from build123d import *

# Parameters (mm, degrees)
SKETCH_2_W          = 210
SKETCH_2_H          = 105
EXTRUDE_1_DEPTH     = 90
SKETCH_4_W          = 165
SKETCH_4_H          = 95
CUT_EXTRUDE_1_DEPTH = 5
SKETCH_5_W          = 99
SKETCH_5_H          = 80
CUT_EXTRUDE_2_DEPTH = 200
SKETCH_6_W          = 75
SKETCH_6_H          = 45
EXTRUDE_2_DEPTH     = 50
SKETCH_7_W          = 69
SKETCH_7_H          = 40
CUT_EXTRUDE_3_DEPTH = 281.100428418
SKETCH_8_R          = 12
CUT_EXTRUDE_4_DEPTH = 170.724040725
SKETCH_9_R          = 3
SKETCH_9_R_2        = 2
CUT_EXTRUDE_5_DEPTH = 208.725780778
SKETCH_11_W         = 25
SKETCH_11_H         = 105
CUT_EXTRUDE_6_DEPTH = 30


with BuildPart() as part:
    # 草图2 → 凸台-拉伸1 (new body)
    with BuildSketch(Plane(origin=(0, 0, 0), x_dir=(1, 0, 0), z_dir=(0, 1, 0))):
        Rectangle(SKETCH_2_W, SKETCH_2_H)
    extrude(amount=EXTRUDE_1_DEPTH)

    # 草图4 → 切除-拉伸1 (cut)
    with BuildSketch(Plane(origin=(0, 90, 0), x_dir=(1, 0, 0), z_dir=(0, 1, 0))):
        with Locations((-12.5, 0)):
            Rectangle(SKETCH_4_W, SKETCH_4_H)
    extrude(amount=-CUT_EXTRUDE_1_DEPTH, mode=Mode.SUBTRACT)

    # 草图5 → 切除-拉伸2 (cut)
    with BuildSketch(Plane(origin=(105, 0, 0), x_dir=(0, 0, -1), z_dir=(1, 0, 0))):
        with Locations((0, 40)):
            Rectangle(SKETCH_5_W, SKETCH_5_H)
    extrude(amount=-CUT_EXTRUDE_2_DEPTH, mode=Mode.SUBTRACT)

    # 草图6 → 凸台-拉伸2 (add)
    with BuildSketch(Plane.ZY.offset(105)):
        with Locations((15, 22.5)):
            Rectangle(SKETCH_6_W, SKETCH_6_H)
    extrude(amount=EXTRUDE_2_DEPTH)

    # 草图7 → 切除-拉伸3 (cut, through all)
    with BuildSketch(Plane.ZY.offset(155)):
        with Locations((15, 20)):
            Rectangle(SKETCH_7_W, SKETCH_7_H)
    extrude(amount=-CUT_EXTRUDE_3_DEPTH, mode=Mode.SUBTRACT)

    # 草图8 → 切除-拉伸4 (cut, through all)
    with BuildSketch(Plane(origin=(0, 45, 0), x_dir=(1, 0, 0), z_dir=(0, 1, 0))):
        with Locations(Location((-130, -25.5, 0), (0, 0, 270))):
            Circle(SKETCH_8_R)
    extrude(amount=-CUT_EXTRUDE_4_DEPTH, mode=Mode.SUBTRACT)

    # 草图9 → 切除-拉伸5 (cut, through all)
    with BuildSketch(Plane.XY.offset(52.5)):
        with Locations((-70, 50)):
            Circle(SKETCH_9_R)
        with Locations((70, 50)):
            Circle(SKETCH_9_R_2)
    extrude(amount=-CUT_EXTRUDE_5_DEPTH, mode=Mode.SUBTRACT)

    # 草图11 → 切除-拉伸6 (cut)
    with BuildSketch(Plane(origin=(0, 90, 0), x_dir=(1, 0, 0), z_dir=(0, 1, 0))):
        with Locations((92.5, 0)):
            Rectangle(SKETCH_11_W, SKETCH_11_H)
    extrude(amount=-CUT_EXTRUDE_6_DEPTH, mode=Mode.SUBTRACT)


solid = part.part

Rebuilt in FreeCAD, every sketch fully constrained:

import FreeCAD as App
import Part
import Sketcher
Q = App.Units.Quantity


def add_polygon(sketch, points):
    """Adds a closed chain of lines whose ends are joined by coincident constraints."""
    first, n = sketch.GeometryCount, len(points)
    for a, b in zip(points, points[1:] + points[:1]):
        sketch.addGeometry(Part.LineSegment(App.Vector(*a, 0), App.Vector(*b, 0)), False)
    for i in range(n):
        sketch.addConstraint(Sketcher.Constraint("Coincident", first + i, 2, first + (i + 1) % n, 1))

doc = App.newDocument("Part")
body = doc.addObject("PartDesign::Body", "Body")

sketch1 = body.newObject("Sketcher::SketchObject", "Sketch")
sketch1.AttachmentSupport = (doc.getObject("XZ_Plane"), [""])
sketch1.MapMode = "FlatFace"
add_polygon(sketch1, [(-105, -52), (-105, 52), (105, 52), (105, -52)])
sketch1.addConstraint([
    Sketcher.Constraint("Vertical", 0),
    Sketcher.Constraint("Horizontal", 1),
    Sketcher.Constraint("Vertical", 2),
    Sketcher.Constraint("Horizontal", 3),
    Sketcher.Constraint("Symmetric", 0, 2, 2, 2, -1, 1),
    Sketcher.Constraint("DistanceX", 1, 1, 1, 2, Q("210 mm")),
    Sketcher.Constraint("DistanceY", 0, 1, 0, 2, Q("105 mm")),
])
pad1 = body.newObject("PartDesign::Pad", "Pad")
pad1.Profile = sketch1
pad1.Length = 90
pad1.Reversed = True

sketch2 = body.newObject("Sketcher::SketchObject", "Sketch001")
sketch2.AttachmentSupport = (doc.getObject("XZ_Plane"), [""])
sketch2.MapMode = "FlatFace"
sketch2.AttachmentOffset = App.Placement(App.Vector(0, 0, -90), App.Rotation())
add_polygon(sketch2, [(-95, -48), (-95, 48), (70, 48), (70, -48)])
sketch2.addConstraint([
    Sketcher.Constraint("Vertical", 0),
    Sketcher.Constraint("Horizontal", 1),
    Sketcher.Constraint("Vertical", 2),
    Sketcher.Constraint("Horizontal", 3),
    Sketcher.Constraint("DistanceX", 1, 1, 1, 2, Q("165 mm")),
    Sketcher.Constraint("DistanceY", 0, 1, 0, 2, Q("95 mm")),
    Sketcher.Constraint("DistanceX", 0, 2, -1, 1, Q("95 mm")),
    Sketcher.Constraint("DistanceY", -1, 1, 0, 2, Q("47.5 mm")),
])
pocket1 = body.newObject("PartDesign::Pocket", "Pocket")
pocket1.Profile = sketch2
pocket1.Length = 5
pocket1.Reversed = True

sketch3 = body.newObject("Sketcher::SketchObject", "Sketch002")
sketch3.AttachmentSupport = (doc.getObject("YZ_Plane"), [""])
sketch3.MapMode = "FlatFace"
sketch3.AttachmentOffset = App.Placement(App.Vector(0, 0, 105), App.Rotation())
add_polygon(sketch3, [(80, 50), (0, 50), (0, -50), (80, -50)])
sketch3.addConstraint([
    Sketcher.Constraint("Horizontal", 0),
    Sketcher.Constraint("Vertical", 1),
    Sketcher.Constraint("Horizontal", 2),
    Sketcher.Constraint("Vertical", 3),
    Sketcher.Constraint("Symmetric", 0, 2, 1, 2, -1, 1),
    Sketcher.Constraint("DistanceX", 0, 2, 0, 1, Q("80 mm")),
    Sketcher.Constraint("DistanceY", 1, 2, 1, 1, Q("99 mm")),
])
pocket2 = body.newObject("PartDesign::Pocket", "Pocket001")
pocket2.Profile = sketch3
pocket2.Length = 200

sketch4 = body.newObject("Sketcher::SketchObject", "Sketch003")
sketch4.AttachmentSupport = (doc.getObject("YZ_Plane"), [""])
sketch4.MapMode = "FlatFace"
sketch4.AttachmentOffset = App.Placement(App.Vector(0, 0, -105), App.Rotation())
add_polygon(sketch4, [(45, -22), (0, -22), (0, 52), (45, 52)])
sketch4.addConstraint([
    Sketcher.Constraint("Horizontal", 0),
    Sketcher.Constraint("Vertical", 1),
    Sketcher.Constraint("Horizontal", 2),
    Sketcher.Constraint("Vertical", 3),
    Sketcher.Constraint("PointOnObject", 0, 2, -2),
    Sketcher.Constraint("DistanceX", 0, 2, 0, 1, Q("45 mm")),
    Sketcher.Constraint("DistanceY", 1, 1, 1, 2, Q("75 mm")),
    Sketcher.Constraint("DistanceY", 0, 2, -1, 1, Q("22.5 mm")),
])
pad2 = body.newObject("PartDesign::Pad", "Pad001")
pad2.Profile = sketch4
pad2.Length = 50
pad2.Reversed = True

sketch5 = body.newObject("Sketcher::SketchObject", "Sketch004")
sketch5.AttachmentSupport = (doc.getObject("YZ_Plane"), [""])
sketch5.MapMode = "FlatFace"
sketch5.AttachmentOffset = App.Placement(App.Vector(0, 0, -155), App.Rotation())
add_polygon(sketch5, [(40, -20), (0, -20), (0, 50), (40, 50)])
sketch5.addConstraint([
    Sketcher.Constraint("Horizontal", 0),
    Sketcher.Constraint("Vertical", 1),
    Sketcher.Constraint("Horizontal", 2),
    Sketcher.Constraint("Vertical", 3),
    Sketcher.Constraint("PointOnObject", 0, 2, -2),
    Sketcher.Constraint("DistanceX", 0, 2, 0, 1, Q("40 mm")),
    Sketcher.Constraint("DistanceY", 1, 1, 1, 2, Q("69 mm")),
    Sketcher.Constraint("DistanceY", 0, 2, -1, 1, Q("19.5 mm")),
])
pocket3 = body.newObject("PartDesign::Pocket", "Pocket002")
pocket3.Profile = sketch5
pocket3.Type = "ThroughAll"
pocket3.Reversed = True

sketch6 = body.newObject("Sketcher::SketchObject", "Sketch005")
sketch6.AttachmentSupport = (doc.getObject("XZ_Plane"), [""])
sketch6.MapMode = "FlatFace"
sketch6.AttachmentOffset = App.Placement(App.Vector(0, 0, -45), App.Rotation())
sketch6.addGeometry(Part.Circle(App.Vector(-130, 26, 0), App.Vector(0, 0, 1), 12), False)
sketch6.addConstraint([
    Sketcher.Constraint("Diameter", 0, Q("24 mm")),
    Sketcher.Constraint("DistanceX", 0, 3, -1, 1, Q("130 mm")),
    Sketcher.Constraint("DistanceY", -1, 1, 0, 3, Q("25.5 mm")),
])
pocket4 = body.newObject("PartDesign::Pocket", "Pocket003")
pocket4.Profile = sketch6
pocket4.Type = "ThroughAll"
pocket4.Reversed = True

sketch7 = body.newObject("Sketcher::SketchObject", "Sketch006")
sketch7.AttachmentSupport = (doc.getObject("XY_Plane"), [""])
sketch7.MapMode = "FlatFace"
sketch7.AttachmentOffset = App.Placement(App.Vector(0, 0, 52.5), App.Rotation())
sketch7.addGeometry([
    Part.Circle(App.Vector(-70, 50, 0), App.Vector(0, 0, 1), 3),
    Part.Circle(App.Vector(70, 50, 0), App.Vector(0, 0, 1), 2),
], False)
sketch7.addConstraint([
    Sketcher.Constraint("Symmetric", 0, 3, 1, 3, -2),
    Sketcher.Constraint("Diameter", 0, Q("6 mm")),
    Sketcher.Constraint("Diameter", 1, Q("4 mm")),
    Sketcher.Constraint("DistanceX", 0, 3, -1, 1, Q("70 mm")),
    Sketcher.Constraint("DistanceY", -1, 1, 0, 3, Q("50 mm")),
])
pocket5 = body.newObject("PartDesign::Pocket", "Pocket004")
pocket5.Profile = sketch7
pocket5.Type = "ThroughAll"

sketch8 = body.newObject("Sketcher::SketchObject", "Sketch007")
sketch8.AttachmentSupport = (doc.getObject("XZ_Plane"), [""])
sketch8.MapMode = "FlatFace"
sketch8.AttachmentOffset = App.Placement(App.Vector(0, 0, -90), App.Rotation())
add_polygon(sketch8, [(80, -52), (80, 52), (105, 52), (105, -52)])
sketch8.addConstraint([
    Sketcher.Constraint("Vertical", 0),
    Sketcher.Constraint("Horizontal", 1),
    Sketcher.Constraint("Vertical", 2),
    Sketcher.Constraint("Horizontal", 3),
    Sketcher.Constraint("DistanceX", 1, 1, 1, 2, Q("25 mm")),
    Sketcher.Constraint("DistanceY", 0, 1, 0, 2, Q("105 mm")),
    Sketcher.Constraint("DistanceX", -1, 1, 0, 2, Q("80 mm")),
    Sketcher.Constraint("DistanceY", -1, 1, 0, 2, Q("52.5 mm")),
])
pocket6 = body.newObject("PartDesign::Pocket", "Pocket005")
pocket6.Profile = sketch8
pocket6.Length = 30
pocket6.Reversed = True

doc.recompute()
